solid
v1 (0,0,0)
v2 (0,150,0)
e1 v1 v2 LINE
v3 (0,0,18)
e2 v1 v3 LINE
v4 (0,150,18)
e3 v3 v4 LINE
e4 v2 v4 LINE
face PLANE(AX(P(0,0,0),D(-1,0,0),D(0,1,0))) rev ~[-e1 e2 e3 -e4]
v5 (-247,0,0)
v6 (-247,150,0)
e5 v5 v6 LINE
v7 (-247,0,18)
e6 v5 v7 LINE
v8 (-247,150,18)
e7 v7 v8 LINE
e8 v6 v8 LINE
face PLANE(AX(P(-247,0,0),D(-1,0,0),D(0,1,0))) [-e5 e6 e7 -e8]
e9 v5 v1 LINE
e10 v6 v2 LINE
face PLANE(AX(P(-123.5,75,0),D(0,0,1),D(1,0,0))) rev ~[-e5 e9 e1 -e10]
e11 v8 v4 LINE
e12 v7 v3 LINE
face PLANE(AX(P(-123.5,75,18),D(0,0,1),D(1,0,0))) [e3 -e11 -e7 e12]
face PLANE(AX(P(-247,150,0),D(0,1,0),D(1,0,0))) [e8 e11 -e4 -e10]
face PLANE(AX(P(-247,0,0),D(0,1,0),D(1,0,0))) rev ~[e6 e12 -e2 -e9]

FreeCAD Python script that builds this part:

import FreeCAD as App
import Part
import Sketcher


def add_polygon(sketch, points):
    """Adds a closed chain of lines whose ends are joined by coincident constraints."""
    first, n = sketch.GeometryCount, len(points)
    for a, b in zip(points, points[1:] + points[:1]):
        sketch.addGeometry(Part.LineSegment(App.Vector(*a, 0), App.Vector(*b, 0)), False)
    for i in range(n):
        sketch.addConstraint(Sketcher.Constraint("Coincident", first + i, 2, first + (i + 1) % n, 1))

doc = App.newDocument("Part")
body = doc.addObject("PartDesign::Body", "Body")

# Sketch on XY plane
sketch1 = doc.addObject("Sketcher::SketchObject", "Sketch")
body.addObject(sketch1)
sketch1.AttachmentSupport = (doc.XY_Plane, [""])
sketch1.MapMode = "FlatFace"
add_polygon(sketch1, [(-247, 150), (-247, 0), (0, 0), (0, 150)])  # lines 0-3
sketch1.addConstraint([
    Sketcher.Constraint("Vertical", 0),
    Sketcher.Constraint("Horizontal", 1),
    Sketcher.Constraint("Vertical", 2),
    Sketcher.Constraint("Horizontal", 3),
    Sketcher.Constraint("Coincident", 1, 2, -1, 1),
    Sketcher.Constraint("DistanceX", 1, 1, 1, 2, 247.0),
    Sketcher.Constraint("DistanceY", 0, 2, 0, 1, 150.0),
])
pad1 = doc.addObject("PartDesign::Pad", "Pad")
body.addObject(pad1)
pad1.Profile = sketch1
pad1.Length = 18

doc.recompute()
